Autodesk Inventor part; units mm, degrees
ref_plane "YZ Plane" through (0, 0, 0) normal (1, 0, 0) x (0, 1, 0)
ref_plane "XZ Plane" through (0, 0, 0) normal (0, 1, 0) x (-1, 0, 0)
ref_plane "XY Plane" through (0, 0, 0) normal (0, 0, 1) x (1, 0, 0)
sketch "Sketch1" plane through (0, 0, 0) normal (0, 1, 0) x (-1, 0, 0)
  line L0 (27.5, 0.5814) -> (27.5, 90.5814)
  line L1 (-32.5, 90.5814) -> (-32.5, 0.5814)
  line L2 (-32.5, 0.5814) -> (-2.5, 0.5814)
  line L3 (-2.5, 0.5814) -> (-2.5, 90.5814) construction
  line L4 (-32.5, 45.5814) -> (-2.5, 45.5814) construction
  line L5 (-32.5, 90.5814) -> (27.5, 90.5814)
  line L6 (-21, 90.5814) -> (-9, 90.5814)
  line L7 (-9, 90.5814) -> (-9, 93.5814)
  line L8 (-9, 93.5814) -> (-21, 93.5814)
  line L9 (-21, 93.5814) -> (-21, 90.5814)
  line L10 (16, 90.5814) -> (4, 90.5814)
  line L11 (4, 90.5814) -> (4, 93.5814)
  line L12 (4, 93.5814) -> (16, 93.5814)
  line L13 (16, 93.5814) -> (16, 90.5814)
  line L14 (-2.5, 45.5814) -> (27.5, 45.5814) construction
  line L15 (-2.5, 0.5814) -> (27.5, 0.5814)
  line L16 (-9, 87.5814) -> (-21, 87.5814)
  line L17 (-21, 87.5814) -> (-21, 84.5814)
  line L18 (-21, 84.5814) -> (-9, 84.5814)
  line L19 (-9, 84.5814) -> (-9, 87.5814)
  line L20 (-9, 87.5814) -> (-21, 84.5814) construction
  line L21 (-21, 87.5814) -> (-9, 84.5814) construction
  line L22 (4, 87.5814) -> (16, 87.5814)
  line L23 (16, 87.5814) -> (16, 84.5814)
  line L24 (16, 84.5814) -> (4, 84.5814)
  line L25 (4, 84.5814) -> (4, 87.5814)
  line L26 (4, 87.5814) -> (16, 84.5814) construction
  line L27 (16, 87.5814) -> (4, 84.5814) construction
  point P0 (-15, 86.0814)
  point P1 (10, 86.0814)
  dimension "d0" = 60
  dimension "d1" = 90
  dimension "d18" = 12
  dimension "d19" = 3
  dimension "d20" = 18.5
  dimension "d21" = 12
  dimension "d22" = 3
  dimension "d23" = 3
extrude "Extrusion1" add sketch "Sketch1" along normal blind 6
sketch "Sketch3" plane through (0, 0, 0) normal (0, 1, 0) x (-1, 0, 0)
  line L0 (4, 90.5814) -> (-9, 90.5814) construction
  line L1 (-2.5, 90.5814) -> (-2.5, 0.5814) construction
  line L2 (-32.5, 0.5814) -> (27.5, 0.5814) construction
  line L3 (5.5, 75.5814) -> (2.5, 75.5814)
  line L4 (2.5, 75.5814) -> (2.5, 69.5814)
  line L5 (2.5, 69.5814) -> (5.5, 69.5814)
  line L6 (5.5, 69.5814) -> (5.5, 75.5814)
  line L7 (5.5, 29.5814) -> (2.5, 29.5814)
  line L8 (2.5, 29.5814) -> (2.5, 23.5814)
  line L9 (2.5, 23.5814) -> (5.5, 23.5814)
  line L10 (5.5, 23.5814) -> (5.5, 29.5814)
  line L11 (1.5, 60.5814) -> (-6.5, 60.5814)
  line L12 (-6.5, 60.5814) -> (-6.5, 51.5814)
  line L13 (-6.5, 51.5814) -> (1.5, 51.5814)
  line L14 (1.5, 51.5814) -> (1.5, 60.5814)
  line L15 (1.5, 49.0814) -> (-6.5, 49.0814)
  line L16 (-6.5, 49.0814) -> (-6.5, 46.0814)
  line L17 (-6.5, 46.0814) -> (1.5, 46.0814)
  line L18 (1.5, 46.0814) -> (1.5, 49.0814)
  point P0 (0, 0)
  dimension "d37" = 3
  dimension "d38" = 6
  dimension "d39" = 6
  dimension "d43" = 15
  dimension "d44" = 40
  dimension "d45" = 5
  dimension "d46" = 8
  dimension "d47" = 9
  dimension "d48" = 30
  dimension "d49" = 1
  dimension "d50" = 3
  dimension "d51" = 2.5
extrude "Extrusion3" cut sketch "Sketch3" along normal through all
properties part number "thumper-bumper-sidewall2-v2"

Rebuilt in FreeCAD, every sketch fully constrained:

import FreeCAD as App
import Part
import Sketcher


def add_polygon(sketch, points):
    """Adds a closed chain of lines whose ends are joined by coincident constraints."""
    first, n = sketch.GeometryCount, len(points)
    for a, b in zip(points, points[1:] + points[:1]):
        sketch.addGeometry(Part.LineSegment(App.Vector(*a, 0), App.Vector(*b, 0)), False)
    for i in range(n):
        sketch.addConstraint(Sketcher.Constraint("Coincident", first + i, 2, first + (i + 1) % n, 1))

doc = App.newDocument("Part")
body = doc.addObject("PartDesign::Body", "Body")

sketch1 = body.newObject("Sketcher::SketchObject", "Sketch")
sketch1.AttachmentSupport = (doc.getObject("XZ_Plane"), [""])
sketch1.MapMode = "FlatFace"
add_polygon(sketch1, [(-27.5, 0.6), (-27.5, 90.6), (-16, 90.6), (-16, 93.6), (-4, 93.6), (-4, 90.6), (9, 90.6), (9, 93.6), (21, 93.6), (21, 90.6), (32.5, 90.6), (32.5, 0.6)])
add_polygon(sketch1, [(21, 87.6), (9, 87.6), (9, 84.6), (21, 84.6)])
add_polygon(sketch1, [(-4, 84.6), (-4, 87.6), (-16, 87.6), (-16, 84.6)])
sketch1.addConstraint([
    Sketcher.Constraint("Vertical", 0),
    Sketcher.Constraint("Horizontal", 1),
    Sketcher.Constraint("Vertical", 2),
    Sketcher.Constraint("Horizontal", 3),
    Sketcher.Constraint("Vertical", 4),
    Sketcher.Constraint("Horizontal", 5),
    Sketcher.Constraint("Vertical", 6),
    Sketcher.Constraint("Horizontal", 7),
    Sketcher.Constraint("Vertical", 8),
    Sketcher.Constraint("Horizontal", 9),
    Sketcher.Constraint("Vertical", 10),
    Sketcher.Constraint("Horizontal", 11),
    Sketcher.Constraint("Horizontal", 12),
    Sketcher.Constraint("Vertical", 13),
    Sketcher.Constraint("Horizontal", 14),
    Sketcher.Constraint("Vertical", 15),
    Sketcher.Constraint("Vertical", 16),
    Sketcher.Constraint("Horizontal", 17),
    Sketcher.Constraint("Vertical", 18),
    Sketcher.Constraint("Horizontal", 19),
    Sketcher.Constraint("Horizontal", 1, 2, 4, 2),
    Sketcher.Constraint("Horizontal", 3, 2, 6, 2),
    Sketcher.Constraint("Horizontal", 5, 2, 8, 2),
    Sketcher.Constraint("Horizontal", 15, 2, 16, 2),
    Sketcher.Constraint("Horizontal", 14, 2, 18, 2),
    Sketcher.Constraint("Vertical", 6, 2, 12, 2),
    Sketcher.Constraint("Vertical", 8, 2, 14, 2),
    Sketcher.Constraint("Vertical", 4, 2, 16, 2),
    Sketcher.Constraint("Vertical", 2, 2, 17, 2),
    Sketcher.Constraint("Equal", 3, 7),
    Sketcher.Constraint("Equal", 1, 9),
    Sketcher.Constraint("Equal", 8, 13),
    Sketcher.Constraint("DistanceX", 3, 1, 3, 2, 12.0),
    Sketcher.Constraint("DistanceX", 11, 2, 11, 1, 60.0),
    Sketcher.Constraint("DistanceY", 0, 1, 0, 2, 90.0),
    Sketcher.Constraint("DistanceY", 2, 1, 2, 2, 3.0),
    Sketcher.Constraint("DistanceY", 12, 2, 5, 2, 3.0),
    Sketcher.Constraint("DistanceX", 5, 1, 5, 2, 13.0),
    Sketcher.Constraint("DistanceX", 1, 2, -1, 1, 16.0),
    Sketcher.Constraint("DistanceY", -1, 1, 0, 2, 90.5814),
])
pad1 = body.newObject("PartDesign::Pad", "Pad")
pad1.Profile = sketch1
pad1.Length = 6
pad1.Reversed = True

sketch2 = body.newObject("Sketcher::SketchObject", "Sketch001")
sketch2.AttachmentSupport = (doc.getObject("XZ_Plane"), [""])
sketch2.MapMode = "FlatFace"
add_polygon(sketch2, [(-5.5, 69.6), (-5.5, 75.6), (-2.5, 75.6), (-2.5, 69.6)])
add_polygon(sketch2, [(-5.5, 23.6), (-5.5, 29.6), (-2.5, 29.6), (-2.5, 23.6)])
add_polygon(sketch2, [(-1.5, 51.6), (-1.5, 60.6), (6.5, 60.6), (6.5, 51.6)])
add_polygon(sketch2, [(-1.5, 46.1), (-1.5, 49.1), (6.5, 49.1), (6.5, 46.1)])
sketch2.addConstraint([
    Sketcher.Constraint("Vertical", 0),
    Sketcher.Constraint("Horizontal", 1),
    Sketcher.Constraint("Vertical", 2),
    Sketcher.Constraint("Horizontal", 3),
    Sketcher.Constraint("Vertical", 4),
    Sketcher.Constraint("Horizontal", 5),
    Sketcher.Constraint("Vertical", 6),
    Sketcher.Constraint("Horizontal", 7),
    Sketcher.Constraint("Vertical", 8),
    Sketcher.Constraint("Horizontal", 9),
    Sketcher.Constraint("Vertical", 10),
    Sketcher.Constraint("Horizontal", 11),
    Sketcher.Constraint("Vertical", 12),
    Sketcher.Constraint("Horizontal", 13),
    Sketcher.Constraint("Vertical", 14),
    Sketcher.Constraint("Horizontal", 15),
    Sketcher.Constraint("Vertical", 3, 2, 4, 2),
    Sketcher.Constraint("Vertical", 2, 2, 5, 2),
    Sketcher.Constraint("Vertical", 11, 2, 12, 2),
    Sketcher.Constraint("Vertical", 10, 2, 13, 2),
    Sketcher.Constraint("Equal", 2, 4),
    Sketcher.Constraint("Equal", 7, 12),
    Sketcher.Constraint("DistanceX", 1, 1, 1, 2, 3.0),
    Sketcher.Constraint("DistanceX", 9, 1, 9, 2, 8.0),
    Sketcher.Constraint("DistanceY", 0, 1, 0, 2, 6.0),
    Sketcher.Constraint("DistanceY", 8, 1, 8, 2, 9.0),
    Sketcher.Constraint("DistanceY", 4, 2, 3, 2, 40.0),
    Sketcher.Constraint("DistanceX", 2, 2, 8, 2, 1.0),
    Sketcher.Constraint("DistanceY", 8, 2, 2, 2, 9.0),
    Sketcher.Constraint("DistanceX", 1, 2, -1, 1, 2.5),
    Sketcher.Constraint("DistanceY", 12, 2, 11, 2, 2.5),
    Sketcher.Constraint("DistanceY", -1, 1, 0, 2, 75.5814),
])
pocket1 = body.newObject("PartDesign::Pocket", "Pocket")
pocket1.Profile = sketch2
pocket1.Type = "ThroughAll"

doc.recompute()
